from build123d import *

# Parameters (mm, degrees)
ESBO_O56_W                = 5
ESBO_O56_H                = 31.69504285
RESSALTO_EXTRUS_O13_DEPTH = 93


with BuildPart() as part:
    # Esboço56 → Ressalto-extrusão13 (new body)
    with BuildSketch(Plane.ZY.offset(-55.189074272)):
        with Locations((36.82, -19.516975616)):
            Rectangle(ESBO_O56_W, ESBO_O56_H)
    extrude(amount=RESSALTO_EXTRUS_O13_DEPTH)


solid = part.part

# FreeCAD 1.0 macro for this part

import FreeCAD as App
import Part
import Sketcher
from FreeCAD import Vector

doc = App.newDocument("Part")
body = doc.addObject("PartDesign::Body", "Body")

# Sketch on YZ plane
sketch1 = doc.addObject("Sketcher::SketchObject", "Sketch")
body.addObject(sketch1)
sketch1.AttachmentSupport = (doc.YZ_Plane, [""])
sketch1.MapMode = "FlatFace"
sketch1.AttachmentOffset = App.Placement(Vector(0, 0, 55.189074), App.Rotation())
sketch1.addGeometry([
    Part.LineSegment(Vector(-4, 34, 0), Vector(-35, 34, 0)),
    Part.LineSegment(Vector(-35, 34, 0), Vector(-35, 39, 0)),
    Part.LineSegment(Vector(-35, 39, 0), Vector(-4, 39, 0)),
    Part.LineSegment(Vector(-4, 39, 0), Vector(-4, 34, 0)),
], False)
sketch1.addConstraint([
    Sketcher.Constraint("Coincident", 0, 2, 1, 1),
    Sketcher.Constraint("Coincident", 1, 2, 2, 1),
    Sketcher.Constraint("Coincident", 2, 2, 3, 1),
    Sketcher.Constraint("Coincident", 3, 2, 0, 1),
    Sketcher.Constraint("Horizontal", 0),
    Sketcher.Constraint("Vertical", 1),
    Sketcher.Constraint("Horizontal", 2),
    Sketcher.Constraint("Vertical", 3),
    Sketcher.Constraint("DistanceY", 1, 1, 1, 2, 5.0),
    Sketcher.Constraint("DistanceY", -1, 1, 0, 2, 34.32),
    Sketcher.Constraint("DistanceX", 0, 2, 0, 1, 31.695043),
    Sketcher.Constraint("DistanceX", 0, 2, -1, 1, 35.364497),
])
pad1 = doc.addObject("PartDesign::Pad", "Pad")
body.addObject(pad1)
pad1.Profile = sketch1
pad1.Length = 93
pad1.Reversed = True

doc.recompute()
